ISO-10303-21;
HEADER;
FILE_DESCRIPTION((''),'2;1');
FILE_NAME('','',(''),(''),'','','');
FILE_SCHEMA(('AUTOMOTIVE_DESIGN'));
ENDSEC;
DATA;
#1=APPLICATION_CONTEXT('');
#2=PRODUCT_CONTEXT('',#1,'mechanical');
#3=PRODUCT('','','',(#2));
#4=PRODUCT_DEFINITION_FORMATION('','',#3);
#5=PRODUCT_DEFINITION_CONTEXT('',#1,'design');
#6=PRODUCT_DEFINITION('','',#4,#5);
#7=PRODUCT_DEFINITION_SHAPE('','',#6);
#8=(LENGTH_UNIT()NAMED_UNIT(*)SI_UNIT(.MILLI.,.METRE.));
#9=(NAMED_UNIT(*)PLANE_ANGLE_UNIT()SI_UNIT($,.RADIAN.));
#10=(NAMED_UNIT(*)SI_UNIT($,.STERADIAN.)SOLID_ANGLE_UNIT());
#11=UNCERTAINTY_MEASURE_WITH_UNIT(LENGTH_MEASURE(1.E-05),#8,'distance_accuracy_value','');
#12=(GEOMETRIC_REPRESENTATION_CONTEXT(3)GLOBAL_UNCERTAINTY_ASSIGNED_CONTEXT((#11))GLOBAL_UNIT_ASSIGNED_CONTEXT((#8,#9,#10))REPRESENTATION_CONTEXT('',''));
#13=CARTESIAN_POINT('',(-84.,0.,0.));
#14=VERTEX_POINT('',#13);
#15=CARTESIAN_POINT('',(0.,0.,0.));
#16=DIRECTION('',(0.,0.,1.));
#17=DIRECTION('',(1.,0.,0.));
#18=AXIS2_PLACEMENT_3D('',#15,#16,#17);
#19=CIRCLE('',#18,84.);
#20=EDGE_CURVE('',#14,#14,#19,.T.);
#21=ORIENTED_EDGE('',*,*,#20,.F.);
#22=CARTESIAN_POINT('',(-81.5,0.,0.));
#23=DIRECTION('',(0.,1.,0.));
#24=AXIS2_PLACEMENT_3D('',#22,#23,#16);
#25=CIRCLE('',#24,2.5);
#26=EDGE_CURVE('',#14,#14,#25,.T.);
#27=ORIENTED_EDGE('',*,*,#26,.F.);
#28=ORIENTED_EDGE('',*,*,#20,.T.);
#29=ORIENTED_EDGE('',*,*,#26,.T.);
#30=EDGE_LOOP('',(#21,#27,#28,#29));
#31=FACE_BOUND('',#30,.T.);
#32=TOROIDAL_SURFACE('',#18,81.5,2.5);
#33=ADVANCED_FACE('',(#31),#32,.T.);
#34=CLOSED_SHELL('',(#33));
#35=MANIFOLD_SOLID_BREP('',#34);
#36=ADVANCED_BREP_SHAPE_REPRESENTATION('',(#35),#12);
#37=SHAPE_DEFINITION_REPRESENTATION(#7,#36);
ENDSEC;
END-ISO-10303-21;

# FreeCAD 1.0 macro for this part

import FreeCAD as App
import Part
import Sketcher

V = App.Vector
Q = App.Units.Quantity

doc = App.newDocument("Part")
body = doc.addObject("PartDesign::Body", "Body")

# Sketch on XZ plane
sketch1 = doc.addObject("Sketcher::SketchObject", "Sketch")
body.addObject(sketch1)
sketch1.AttachmentSupport = (doc.XZ_Plane, [""])
sketch1.MapMode = "FlatFace"
sketch1.addGeometry(Part.Circle(V(-81.5, 0, 0), V(0, 0, 1), 2.5), False)
sketch1.addConstraint([
    Sketcher.Constraint("PointOnObject", 0, 3, -1),
    Sketcher.Constraint("Diameter", 0, Q("5 mm")),
    Sketcher.Constraint("DistanceX", 0, 3, -1, 1, Q("81.5 mm")),
])

# Sketch on XY plane
sketch2 = doc.addObject("Sketcher::SketchObject", "Sketch001")
body.addObject(sketch2)
sketch2.AttachmentSupport = (doc.XY_Plane, [""])
sketch2.MapMode = "FlatFace"
sketch2.addGeometry(Part.Circle(V(0, 0, 0), V(0, 0, 1), 79), False)
sketch2.addConstraint([
    Sketcher.Constraint("Coincident", 0, 3, -1, 1),
    Sketcher.Constraint("Diameter", 0, Q("158 mm")),
])
doc.recompute()

additivepipe = doc.addObject("PartDesign::AdditivePipe", "AdditivePipe")
body.addObject(additivepipe)
additivepipe.Profile = sketch1
additivepipe.Spine = (sketch2, ["Edge1"])

doc.recompute()
